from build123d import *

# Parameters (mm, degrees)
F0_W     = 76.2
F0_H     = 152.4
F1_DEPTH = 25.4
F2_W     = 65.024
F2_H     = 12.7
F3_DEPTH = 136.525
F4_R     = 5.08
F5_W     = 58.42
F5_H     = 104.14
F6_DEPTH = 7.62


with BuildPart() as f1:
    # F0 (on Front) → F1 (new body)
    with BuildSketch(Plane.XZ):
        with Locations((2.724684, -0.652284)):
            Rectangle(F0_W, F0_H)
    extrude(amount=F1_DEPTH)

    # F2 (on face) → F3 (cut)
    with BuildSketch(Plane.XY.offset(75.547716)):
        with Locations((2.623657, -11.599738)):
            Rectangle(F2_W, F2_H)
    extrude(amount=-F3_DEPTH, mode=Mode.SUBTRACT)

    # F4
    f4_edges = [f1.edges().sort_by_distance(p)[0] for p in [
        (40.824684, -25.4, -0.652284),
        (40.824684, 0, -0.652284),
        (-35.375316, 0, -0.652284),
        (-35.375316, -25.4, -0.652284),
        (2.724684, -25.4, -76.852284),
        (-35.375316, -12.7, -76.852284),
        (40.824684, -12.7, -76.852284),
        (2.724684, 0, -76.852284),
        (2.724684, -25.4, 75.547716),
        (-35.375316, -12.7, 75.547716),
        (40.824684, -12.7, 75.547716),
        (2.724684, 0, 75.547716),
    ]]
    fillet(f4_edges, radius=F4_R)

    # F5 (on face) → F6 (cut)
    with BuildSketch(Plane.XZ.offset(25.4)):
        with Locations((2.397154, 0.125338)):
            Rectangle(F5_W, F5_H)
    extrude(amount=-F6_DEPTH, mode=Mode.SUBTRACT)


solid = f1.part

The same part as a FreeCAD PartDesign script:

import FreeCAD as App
import Part
import Sketcher
Q = App.Units.Quantity


def edges_at(feature, points):
    """Names of the edges that pass closest to the given points."""
    edges = feature.Shape.Edges
    near = lambda p: min(range(len(edges)), key=lambda i: edges[i].distToShape(Part.Vertex(*p))[0])
    return sorted({f"Edge{near(p) + 1}" for p in points})

doc = App.newDocument("Part")
params = doc.addObject("Spreadsheet::Sheet", "Params")
for row, (alias, value) in enumerate([
    ("sketch1_width", "3 in"),
    ("sketch1_height", "6 in"),
    ("pad1_length", "1 in"),
    ("sketch2_height", "0.5 in"),
    ("sketch2_width", "2.56 in"),
    ("pocket1_length", "5.375 in"),
    ("fillet_radius", "0.2 in"),
    ("sketch3_width", "2.3 in"),
    ("sketch3_height", "4.1 in"),
    ("pocket2_length", "0.3 in"),
], start=1):
    params.set(f"A{row}", alias)
    params.set(f"B{row}", "=" + value)
    params.setAlias(f"B{row}", alias)

body = doc.addObject("PartDesign::Body", "Body")

# Sketch on XZ plane
sketch1 = body.newObject("Sketcher::SketchObject", "Sketch")
sketch1.AttachmentSupport = (doc.getObject("XZ_Plane"), [""])
sketch1.MapMode = "FlatFace"
sketch1.addGeometry(Part.LineSegment(App.Vector(-35, 76, 0), App.Vector(-35, -77, 0)), False)
sketch1.addGeometry(Part.LineSegment(App.Vector(-35, -77, 0), App.Vector(41, -77, 0)), False)
sketch1.addGeometry(Part.LineSegment(App.Vector(41, -77, 0), App.Vector(41, 76, 0)), False)
sketch1.addGeometry(Part.LineSegment(App.Vector(41, 76, 0), App.Vector(-35, 76, 0)), False)
sketch1.addConstraint(Sketcher.Constraint("Coincident", 0, 2, 1, 1))
sketch1.addConstraint(Sketcher.Constraint("Coincident", 1, 2, 2, 1))
sketch1.addConstraint(Sketcher.Constraint("Coincident", 2, 2, 3, 1))
sketch1.addConstraint(Sketcher.Constraint("Coincident", 3, 2, 0, 1))
sketch1.addConstraint(Sketcher.Constraint("Vertical", 0))
sketch1.addConstraint(Sketcher.Constraint("Horizontal", 1))
sketch1.addConstraint(Sketcher.Constraint("Vertical", 2))
sketch1.addConstraint(Sketcher.Constraint("Horizontal", 3))
sketch1.addConstraint(Sketcher.Constraint("DistanceX", 1, 1, 1, 2, Q("3 in")))
sketch1.addConstraint(Sketcher.Constraint("DistanceY", 0, 2, 0, 1, Q("6 in")))
sketch1.addConstraint(Sketcher.Constraint("DistanceX", 0, 2, -1, 1, 35.375316))
sketch1.addConstraint(Sketcher.Constraint("DistanceY", 0, 2, -1, 1, 76.852284))
sketch1.setExpression("Constraints[8]", "Params.sketch1_width")
sketch1.setExpression("Constraints[9]", "Params.sketch1_height")
pad1 = body.newObject("PartDesign::Pad", "Pad")
pad1.Profile = sketch1
pad1.setExpression("Length", "Params.pad1_length")

# Sketch on XY plane
sketch2 = body.newObject("Sketcher::SketchObject", "Sketch001")
sketch2.AttachmentSupport = (doc.getObject("XY_Plane"), [""])
sketch2.MapMode = "FlatFace"
sketch2.AttachmentOffset = App.Placement(App.Vector(0, 0, 75.547716), App.Rotation())
sketch2.addGeometry(Part.LineSegment(App.Vector(-30, -5, 0), App.Vector(-30, -18, 0)), False)
sketch2.addGeometry(Part.LineSegment(App.Vector(-30, -18, 0), App.Vector(35, -18, 0)), False)
sketch2.addGeometry(Part.LineSegment(App.Vector(35, -18, 0), App.Vector(35, -5, 0)), False)
sketch2.addGeometry(Part.LineSegment(App.Vector(35, -5, 0), App.Vector(-30, -5, 0)), False)
sketch2.addConstraint(Sketcher.Constraint("Coincident", 0, 2, 1, 1))
sketch2.addConstraint(Sketcher.Constraint("Coincident", 1, 2, 2, 1))
sketch2.addConstraint(Sketcher.Constraint("Coincident", 2, 2, 3, 1))
sketch2.addConstraint(Sketcher.Constraint("Coincident", 3, 2, 0, 1))
sketch2.addConstraint(Sketcher.Constraint("Vertical", 0))
sketch2.addConstraint(Sketcher.Constraint("Horizontal", 1))
sketch2.addConstraint(Sketcher.Constraint("Vertical", 2))
sketch2.addConstraint(Sketcher.Constraint("Horizontal", 3))
sketch2.addConstraint(Sketcher.Constraint("DistanceY", 0, 2, 0, 1, Q("0.5 in")))
sketch2.addConstraint(Sketcher.Constraint("DistanceX", 1, 1, 1, 2, Q("2.56 in")))
sketch2.addConstraint(Sketcher.Constraint("DistanceY", 0, 2, -1, 1, 17.949738))
sketch2.addConstraint(Sketcher.Constraint("DistanceX", 0, 2, -1, 1, 29.888343))
sketch2.setExpression("Constraints[8]", "Params.sketch2_height")
sketch2.setExpression("Constraints[9]", "Params.sketch2_width")
pocket1 = body.newObject("PartDesign::Pocket", "Pocket")
pocket1.Profile = sketch2
pocket1.setExpression("Length", "Params.pocket1_length")
doc.recompute()

fillet = body.newObject("PartDesign::Fillet", "Fillet")
fillet.Base = (pocket1, edges_at(pocket1, [
    (40.825, -25.4, -0.652),
    (40.825, 0, -0.652),
    (-35.375, 0, -0.652),
    (-35.375, -25.4, -0.652),
    (2.725, -25.4, -76.852),
    (-35.375, -12.7, -76.852),
    (40.825, -12.7, -76.852),
    (2.725, 0, -76.852),
    (2.725, -25.4, 75.548),
    (-35.375, -12.7, 75.548),
    (40.825, -12.7, 75.548),
    (2.725, 0, 75.548),
]))
fillet.setExpression("Radius", "Params.fillet_radius")

# Sketch on XZ plane
sketch3 = body.newObject("Sketcher::SketchObject", "Sketch002")
sketch3.AttachmentSupport = (doc.getObject("XZ_Plane"), [""])
sketch3.MapMode = "FlatFace"
sketch3.AttachmentOffset = App.Placement(App.Vector(0, 0, 1 * 25.4), App.Rotation())
sketch3.addGeometry(Part.LineSegment(App.Vector(-27, 52, 0), App.Vector(-27, -52, 0)), False)
sketch3.addGeometry(Part.LineSegment(App.Vector(-27, -52, 0), App.Vector(32, -52, 0)), False)
sketch3.addGeometry(Part.LineSegment(App.Vector(32, -52, 0), App.Vector(32, 52, 0)), False)
sketch3.addGeometry(Part.LineSegment(App.Vector(32, 52, 0), App.Vector(-27, 52, 0)), False)
sketch3.addConstraint(Sketcher.Constraint("Coincident", 0, 2, 1, 1))
sketch3.addConstraint(Sketcher.Constraint("Coincident", 1, 2, 2, 1))
sketch3.addConstraint(Sketcher.Constraint("Coincident", 2, 2, 3, 1))
sketch3.addConstraint(Sketcher.Constraint("Coincident", 3, 2, 0, 1))
sketch3.addConstraint(Sketcher.Constraint("Vertical", 0))
sketch3.addConstraint(Sketcher.Constraint("Horizontal", 1))
sketch3.addConstraint(Sketcher.Constraint("Vertical", 2))
sketch3.addConstraint(Sketcher.Constraint("Horizontal", 3))
sketch3.addConstraint(Sketcher.Constraint("DistanceX", 1, 1, 1, 2, Q("2.3 in")))
sketch3.addConstraint(Sketcher.Constraint("DistanceY", 0, 2, 0, 1, Q("4.1 in")))
sketch3.addConstraint(Sketcher.Constraint("DistanceX", 0, 2, -1, 1, 26.812846))
sketch3.addConstraint(Sketcher.Constraint("DistanceY", 0, 2, -1, 1, 51.944662))
sketch3.setExpression("Constraints[8]", "Params.sketch3_width")
sketch3.setExpression("Constraints[9]", "Params.sketch3_height")
pocket2 = body.newObject("PartDesign::Pocket", "Pocket001")
pocket2.Profile = sketch3
pocket2.setExpression("Length", "Params.pocket2_length")

doc.recompute()
